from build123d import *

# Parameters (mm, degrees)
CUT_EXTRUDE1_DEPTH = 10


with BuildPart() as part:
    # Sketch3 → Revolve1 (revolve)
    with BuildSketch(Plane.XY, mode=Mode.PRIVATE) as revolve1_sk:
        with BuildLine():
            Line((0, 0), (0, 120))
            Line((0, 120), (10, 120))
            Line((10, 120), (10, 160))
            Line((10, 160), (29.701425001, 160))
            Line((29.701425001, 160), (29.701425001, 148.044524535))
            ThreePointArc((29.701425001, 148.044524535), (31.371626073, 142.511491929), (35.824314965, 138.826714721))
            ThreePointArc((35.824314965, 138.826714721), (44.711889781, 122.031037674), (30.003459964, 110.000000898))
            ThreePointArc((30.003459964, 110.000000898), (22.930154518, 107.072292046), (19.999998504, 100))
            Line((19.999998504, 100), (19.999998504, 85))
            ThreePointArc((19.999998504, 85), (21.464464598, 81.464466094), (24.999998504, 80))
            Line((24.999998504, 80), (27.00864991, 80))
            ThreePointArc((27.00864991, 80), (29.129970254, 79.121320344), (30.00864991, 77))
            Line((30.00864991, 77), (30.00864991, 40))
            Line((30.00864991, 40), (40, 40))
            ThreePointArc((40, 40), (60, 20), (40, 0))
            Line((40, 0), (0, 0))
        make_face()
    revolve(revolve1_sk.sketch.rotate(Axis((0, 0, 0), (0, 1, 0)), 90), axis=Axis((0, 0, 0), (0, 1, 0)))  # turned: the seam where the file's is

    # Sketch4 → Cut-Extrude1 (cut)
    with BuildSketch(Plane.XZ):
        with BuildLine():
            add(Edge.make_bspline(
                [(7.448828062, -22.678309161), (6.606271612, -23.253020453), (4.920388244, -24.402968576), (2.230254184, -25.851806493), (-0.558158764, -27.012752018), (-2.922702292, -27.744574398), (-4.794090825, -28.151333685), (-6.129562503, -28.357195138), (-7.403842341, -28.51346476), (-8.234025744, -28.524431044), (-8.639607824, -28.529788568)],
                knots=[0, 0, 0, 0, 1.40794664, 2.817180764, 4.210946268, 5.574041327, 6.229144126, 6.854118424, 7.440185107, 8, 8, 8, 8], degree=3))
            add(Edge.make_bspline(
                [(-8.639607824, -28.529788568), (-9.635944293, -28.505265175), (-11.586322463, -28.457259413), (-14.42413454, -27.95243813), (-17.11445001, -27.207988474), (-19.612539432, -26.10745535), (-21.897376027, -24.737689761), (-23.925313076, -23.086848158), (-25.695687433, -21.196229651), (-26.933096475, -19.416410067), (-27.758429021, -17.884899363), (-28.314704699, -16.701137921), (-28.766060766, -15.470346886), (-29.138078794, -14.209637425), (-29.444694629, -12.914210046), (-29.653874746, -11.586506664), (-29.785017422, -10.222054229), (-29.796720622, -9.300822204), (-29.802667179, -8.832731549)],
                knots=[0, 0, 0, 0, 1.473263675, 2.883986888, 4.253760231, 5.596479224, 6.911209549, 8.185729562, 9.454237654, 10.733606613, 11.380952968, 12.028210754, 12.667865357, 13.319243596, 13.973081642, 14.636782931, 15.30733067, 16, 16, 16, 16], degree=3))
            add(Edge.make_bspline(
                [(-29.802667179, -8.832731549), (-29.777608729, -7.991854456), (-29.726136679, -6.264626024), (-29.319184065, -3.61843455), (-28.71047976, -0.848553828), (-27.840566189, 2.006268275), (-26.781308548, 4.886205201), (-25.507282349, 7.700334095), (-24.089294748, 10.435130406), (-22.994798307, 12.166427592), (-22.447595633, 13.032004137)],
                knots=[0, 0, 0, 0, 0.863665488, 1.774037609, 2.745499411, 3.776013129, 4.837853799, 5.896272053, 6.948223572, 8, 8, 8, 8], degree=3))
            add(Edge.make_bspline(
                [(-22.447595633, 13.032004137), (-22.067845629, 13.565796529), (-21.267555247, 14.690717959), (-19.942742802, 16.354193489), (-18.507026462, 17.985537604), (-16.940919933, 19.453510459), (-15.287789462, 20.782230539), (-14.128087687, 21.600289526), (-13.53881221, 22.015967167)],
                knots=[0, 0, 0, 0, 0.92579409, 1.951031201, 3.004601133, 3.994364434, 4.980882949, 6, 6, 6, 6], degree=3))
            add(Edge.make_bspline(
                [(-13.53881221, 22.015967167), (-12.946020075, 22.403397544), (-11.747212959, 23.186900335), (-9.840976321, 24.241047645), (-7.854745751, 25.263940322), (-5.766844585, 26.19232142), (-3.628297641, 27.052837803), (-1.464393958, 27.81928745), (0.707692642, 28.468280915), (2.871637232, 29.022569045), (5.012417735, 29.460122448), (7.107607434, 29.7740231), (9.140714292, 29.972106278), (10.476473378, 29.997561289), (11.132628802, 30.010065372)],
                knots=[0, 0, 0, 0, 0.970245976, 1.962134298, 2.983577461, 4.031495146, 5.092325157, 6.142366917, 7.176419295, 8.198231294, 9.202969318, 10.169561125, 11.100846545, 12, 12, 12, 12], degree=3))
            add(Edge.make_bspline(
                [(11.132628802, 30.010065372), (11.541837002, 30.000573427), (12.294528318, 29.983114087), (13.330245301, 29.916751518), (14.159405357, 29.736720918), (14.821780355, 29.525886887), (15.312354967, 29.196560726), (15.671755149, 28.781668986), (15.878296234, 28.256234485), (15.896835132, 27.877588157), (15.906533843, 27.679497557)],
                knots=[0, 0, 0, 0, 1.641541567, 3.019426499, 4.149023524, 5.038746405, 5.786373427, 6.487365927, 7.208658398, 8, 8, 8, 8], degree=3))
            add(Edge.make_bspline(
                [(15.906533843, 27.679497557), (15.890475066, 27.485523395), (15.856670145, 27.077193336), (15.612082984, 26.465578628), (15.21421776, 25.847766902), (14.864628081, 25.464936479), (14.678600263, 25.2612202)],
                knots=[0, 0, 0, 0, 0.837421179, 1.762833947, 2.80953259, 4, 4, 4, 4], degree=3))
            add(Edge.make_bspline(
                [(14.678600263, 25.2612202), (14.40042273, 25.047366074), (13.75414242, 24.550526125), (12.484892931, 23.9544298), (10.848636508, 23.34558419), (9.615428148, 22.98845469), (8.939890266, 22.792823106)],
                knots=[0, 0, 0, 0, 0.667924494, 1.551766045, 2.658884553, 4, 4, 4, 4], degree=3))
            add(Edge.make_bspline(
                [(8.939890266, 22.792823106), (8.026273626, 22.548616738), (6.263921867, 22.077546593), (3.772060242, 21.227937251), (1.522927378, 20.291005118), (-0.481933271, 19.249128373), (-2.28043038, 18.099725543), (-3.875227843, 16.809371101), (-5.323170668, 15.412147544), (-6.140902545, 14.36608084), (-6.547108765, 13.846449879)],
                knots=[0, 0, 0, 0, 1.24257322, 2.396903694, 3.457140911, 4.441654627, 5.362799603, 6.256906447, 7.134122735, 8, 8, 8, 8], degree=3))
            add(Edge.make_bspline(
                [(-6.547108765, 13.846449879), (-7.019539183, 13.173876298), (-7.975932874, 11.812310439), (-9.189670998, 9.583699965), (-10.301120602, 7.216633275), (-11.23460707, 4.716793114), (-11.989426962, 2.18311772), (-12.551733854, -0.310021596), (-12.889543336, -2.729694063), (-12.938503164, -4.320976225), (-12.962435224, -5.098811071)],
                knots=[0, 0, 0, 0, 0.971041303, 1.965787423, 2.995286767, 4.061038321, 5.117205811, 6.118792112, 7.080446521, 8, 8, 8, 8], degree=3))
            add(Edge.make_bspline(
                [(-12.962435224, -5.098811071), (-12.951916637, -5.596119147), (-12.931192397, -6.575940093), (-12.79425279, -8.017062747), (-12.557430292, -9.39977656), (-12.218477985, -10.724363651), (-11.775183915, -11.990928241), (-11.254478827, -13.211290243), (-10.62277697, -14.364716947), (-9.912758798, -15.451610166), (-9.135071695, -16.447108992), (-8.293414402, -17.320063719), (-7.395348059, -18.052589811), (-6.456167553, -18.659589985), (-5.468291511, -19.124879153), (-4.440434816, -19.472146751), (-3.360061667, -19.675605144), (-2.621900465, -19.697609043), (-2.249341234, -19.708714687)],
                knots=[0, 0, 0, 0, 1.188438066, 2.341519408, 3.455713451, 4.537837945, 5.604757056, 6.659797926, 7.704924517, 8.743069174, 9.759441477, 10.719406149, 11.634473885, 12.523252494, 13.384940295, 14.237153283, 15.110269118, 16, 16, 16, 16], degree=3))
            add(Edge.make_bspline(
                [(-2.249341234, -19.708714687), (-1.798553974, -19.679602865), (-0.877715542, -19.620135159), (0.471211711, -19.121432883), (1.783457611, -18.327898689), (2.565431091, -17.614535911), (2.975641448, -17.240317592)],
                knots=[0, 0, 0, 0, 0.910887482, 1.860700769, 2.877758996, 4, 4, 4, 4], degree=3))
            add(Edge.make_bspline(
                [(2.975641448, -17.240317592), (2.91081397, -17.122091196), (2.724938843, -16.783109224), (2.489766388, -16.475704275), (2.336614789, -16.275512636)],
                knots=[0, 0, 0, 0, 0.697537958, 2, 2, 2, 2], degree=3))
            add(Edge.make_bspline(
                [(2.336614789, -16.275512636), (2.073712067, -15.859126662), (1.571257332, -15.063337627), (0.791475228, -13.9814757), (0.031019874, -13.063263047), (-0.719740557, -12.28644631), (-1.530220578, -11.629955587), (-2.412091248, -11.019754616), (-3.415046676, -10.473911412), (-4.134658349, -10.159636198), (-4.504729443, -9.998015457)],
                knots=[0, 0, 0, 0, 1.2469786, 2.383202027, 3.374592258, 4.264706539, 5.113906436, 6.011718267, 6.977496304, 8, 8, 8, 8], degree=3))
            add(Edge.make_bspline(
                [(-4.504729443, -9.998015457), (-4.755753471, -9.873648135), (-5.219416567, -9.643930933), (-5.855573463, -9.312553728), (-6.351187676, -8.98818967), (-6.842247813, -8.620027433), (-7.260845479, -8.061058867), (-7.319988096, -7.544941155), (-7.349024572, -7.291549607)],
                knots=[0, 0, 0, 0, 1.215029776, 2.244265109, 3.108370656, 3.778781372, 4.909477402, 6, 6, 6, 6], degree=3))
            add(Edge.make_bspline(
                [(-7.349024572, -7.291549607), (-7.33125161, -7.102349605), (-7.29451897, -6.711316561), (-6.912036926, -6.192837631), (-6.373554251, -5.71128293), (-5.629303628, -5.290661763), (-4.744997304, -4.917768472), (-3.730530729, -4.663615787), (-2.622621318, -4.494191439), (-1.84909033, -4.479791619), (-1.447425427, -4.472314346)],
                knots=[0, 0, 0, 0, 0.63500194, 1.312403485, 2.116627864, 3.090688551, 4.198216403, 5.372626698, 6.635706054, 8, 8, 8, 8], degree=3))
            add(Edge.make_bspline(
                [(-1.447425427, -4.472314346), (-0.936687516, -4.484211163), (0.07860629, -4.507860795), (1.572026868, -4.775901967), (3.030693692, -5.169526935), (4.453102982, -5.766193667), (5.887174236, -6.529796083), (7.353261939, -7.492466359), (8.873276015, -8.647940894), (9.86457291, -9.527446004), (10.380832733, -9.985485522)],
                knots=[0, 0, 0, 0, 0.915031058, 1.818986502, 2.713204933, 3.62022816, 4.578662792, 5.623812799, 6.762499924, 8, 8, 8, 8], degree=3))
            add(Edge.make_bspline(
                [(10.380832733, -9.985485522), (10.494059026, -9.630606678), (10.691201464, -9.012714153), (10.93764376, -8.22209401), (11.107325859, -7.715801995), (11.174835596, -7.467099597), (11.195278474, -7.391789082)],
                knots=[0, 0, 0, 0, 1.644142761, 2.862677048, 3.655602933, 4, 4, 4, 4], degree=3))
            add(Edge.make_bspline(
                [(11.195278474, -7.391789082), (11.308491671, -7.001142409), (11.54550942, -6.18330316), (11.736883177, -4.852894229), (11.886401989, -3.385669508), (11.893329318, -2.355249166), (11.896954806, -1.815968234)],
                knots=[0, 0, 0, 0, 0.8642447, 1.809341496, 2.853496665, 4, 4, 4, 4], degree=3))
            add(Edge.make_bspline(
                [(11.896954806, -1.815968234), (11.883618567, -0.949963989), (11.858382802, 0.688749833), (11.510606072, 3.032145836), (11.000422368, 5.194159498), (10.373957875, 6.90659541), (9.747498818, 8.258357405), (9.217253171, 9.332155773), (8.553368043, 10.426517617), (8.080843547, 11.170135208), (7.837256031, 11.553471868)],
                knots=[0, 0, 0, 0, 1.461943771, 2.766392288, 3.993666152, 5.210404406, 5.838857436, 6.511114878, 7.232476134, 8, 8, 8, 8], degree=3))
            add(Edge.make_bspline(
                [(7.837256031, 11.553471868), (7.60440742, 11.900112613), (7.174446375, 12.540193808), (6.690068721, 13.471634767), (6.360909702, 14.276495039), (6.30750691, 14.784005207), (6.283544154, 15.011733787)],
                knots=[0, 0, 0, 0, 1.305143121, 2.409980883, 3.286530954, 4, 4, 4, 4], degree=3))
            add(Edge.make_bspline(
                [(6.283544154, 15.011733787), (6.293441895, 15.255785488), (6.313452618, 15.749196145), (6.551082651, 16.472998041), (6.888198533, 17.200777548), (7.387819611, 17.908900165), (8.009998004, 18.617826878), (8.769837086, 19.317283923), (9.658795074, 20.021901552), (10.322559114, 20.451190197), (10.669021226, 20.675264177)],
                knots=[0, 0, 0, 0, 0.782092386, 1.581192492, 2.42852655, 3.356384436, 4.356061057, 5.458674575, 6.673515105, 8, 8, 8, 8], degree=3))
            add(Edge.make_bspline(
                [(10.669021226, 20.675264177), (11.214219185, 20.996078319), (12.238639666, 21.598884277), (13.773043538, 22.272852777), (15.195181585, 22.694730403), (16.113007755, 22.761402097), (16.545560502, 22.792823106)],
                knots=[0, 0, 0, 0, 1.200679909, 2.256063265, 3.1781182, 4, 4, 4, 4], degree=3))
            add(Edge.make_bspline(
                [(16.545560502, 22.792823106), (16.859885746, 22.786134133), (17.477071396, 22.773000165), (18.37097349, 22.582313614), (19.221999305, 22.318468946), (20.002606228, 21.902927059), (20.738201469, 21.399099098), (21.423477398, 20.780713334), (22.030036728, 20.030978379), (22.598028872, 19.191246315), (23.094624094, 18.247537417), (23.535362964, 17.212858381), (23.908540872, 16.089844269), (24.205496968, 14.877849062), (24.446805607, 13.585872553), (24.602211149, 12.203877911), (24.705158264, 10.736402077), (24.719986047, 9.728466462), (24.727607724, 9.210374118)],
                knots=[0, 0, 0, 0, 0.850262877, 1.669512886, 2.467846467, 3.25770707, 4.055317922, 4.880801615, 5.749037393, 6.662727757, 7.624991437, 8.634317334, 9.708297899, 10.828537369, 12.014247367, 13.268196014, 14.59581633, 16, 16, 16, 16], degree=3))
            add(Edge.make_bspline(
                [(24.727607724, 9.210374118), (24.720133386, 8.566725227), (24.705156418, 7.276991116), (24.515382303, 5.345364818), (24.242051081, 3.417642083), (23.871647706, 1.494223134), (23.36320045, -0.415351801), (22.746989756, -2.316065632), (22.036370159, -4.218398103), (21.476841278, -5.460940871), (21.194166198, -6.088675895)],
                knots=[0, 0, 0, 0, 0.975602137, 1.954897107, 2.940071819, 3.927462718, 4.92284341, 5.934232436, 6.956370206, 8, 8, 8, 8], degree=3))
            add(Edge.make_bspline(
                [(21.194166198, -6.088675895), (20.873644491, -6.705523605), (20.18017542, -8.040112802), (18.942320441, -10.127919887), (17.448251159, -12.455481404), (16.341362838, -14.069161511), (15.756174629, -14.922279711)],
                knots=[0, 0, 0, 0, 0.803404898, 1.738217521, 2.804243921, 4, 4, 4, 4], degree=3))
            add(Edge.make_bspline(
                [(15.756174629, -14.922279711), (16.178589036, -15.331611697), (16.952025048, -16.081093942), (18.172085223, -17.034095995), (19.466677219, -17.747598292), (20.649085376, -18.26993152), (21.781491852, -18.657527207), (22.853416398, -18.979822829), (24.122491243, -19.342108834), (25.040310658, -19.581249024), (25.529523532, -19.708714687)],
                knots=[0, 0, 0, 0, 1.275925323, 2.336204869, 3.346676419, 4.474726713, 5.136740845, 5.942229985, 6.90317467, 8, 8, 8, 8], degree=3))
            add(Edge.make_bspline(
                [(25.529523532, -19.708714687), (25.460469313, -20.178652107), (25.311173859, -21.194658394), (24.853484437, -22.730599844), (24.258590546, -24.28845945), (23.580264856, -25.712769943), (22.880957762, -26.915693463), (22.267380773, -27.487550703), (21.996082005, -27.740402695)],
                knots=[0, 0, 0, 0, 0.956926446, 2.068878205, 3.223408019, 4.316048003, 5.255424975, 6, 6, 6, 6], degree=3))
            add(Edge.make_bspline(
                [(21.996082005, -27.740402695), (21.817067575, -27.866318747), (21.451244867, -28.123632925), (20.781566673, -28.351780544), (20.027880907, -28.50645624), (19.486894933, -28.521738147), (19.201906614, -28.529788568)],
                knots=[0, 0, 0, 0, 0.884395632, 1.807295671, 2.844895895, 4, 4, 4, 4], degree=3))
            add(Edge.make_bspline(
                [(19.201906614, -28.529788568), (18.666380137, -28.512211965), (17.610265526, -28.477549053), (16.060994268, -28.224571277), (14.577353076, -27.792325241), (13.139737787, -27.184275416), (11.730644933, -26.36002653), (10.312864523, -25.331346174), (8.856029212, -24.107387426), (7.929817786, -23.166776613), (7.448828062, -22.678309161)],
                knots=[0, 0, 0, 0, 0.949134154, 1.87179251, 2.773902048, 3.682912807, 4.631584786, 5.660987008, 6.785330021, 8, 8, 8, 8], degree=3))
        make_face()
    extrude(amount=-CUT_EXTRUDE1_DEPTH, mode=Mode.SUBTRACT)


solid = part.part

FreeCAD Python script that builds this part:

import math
import FreeCAD as App
import Part
import Sketcher
Q = App.Units.Quantity

doc = App.newDocument("Part")
params = doc.addObject("Spreadsheet::Sheet", "Params")
for row, (alias, value) in enumerate([
    ("sketch1_radius", "20 mm"),
    ("sketch1_radius2", "3 mm"),
    ("sketch1_radius3", "5 mm"),
    ("sketch1_radius4", "10.000001 mm"),
    ("sketch1_radius5", "15 mm"),
    ("revolution_angle", "360 deg"),
    ("pocket1_length", "10 mm"),
], start=1):
    params.set(f"A{row}", alias)
    params.set(f"B{row}", "=" + value)
    params.setAlias(f"B{row}", alias)

body = doc.addObject("PartDesign::Body", "Body")

sketch1 = body.newObject("Sketcher::SketchObject", "Sketch")
sketch1.AttachmentSupport = (doc.getObject("XY_Plane"), [""])
sketch1.MapMode = "FlatFace"
sketch1.addGeometry([
    Part.LineSegment(App.Vector(0, 120, 0), App.Vector(0, 0, 0)),
    Part.LineSegment(App.Vector(0, 0, 0), App.Vector(40, 0, 0)),
    Part.ArcOfCircle(Part.Circle(App.Vector(40, 20, 0), App.Vector(0, 0, 1), 20), math.radians(-90), math.radians(90)),
    Part.LineSegment(App.Vector(40, 40, 0), App.Vector(30, 40, 0)),
    Part.LineSegment(App.Vector(30, 40, 0), App.Vector(30, 77, 0)),
    Part.ArcOfCircle(Part.Circle(App.Vector(27, 77, 0), App.Vector(0, 0, 1), 3), math.radians(0), math.radians(90)),
    Part.LineSegment(App.Vector(27, 80, 0), App.Vector(25, 80, 0)),
    Part.ArcOfCircle(Part.Circle(App.Vector(25, 85, 0), App.Vector(0, 0, 1), 5), math.radians(180), math.radians(270)),
    Part.LineSegment(App.Vector(20, 85, 0), App.Vector(20, 100, 0)),
    Part.ArcOfCircle(Part.Circle(App.Vector(30, 100, 0), App.Vector(0, 0, 1), 10), math.radians(90), math.radians(180)),
    Part.ArcOfCircle(Part.Circle(App.Vector(30, 125, 0), App.Vector(0, 0, 1), 15), math.radians(-90), math.radians(67)),
    Part.ArcOfCircle(Part.Circle(App.Vector(39.7, 148, 0), App.Vector(0, 0, 1), 10), math.radians(180), math.radians(247)),
    Part.LineSegment(App.Vector(29.7, 148, 0), App.Vector(29.7, 160, 0)),
    Part.LineSegment(App.Vector(29.7, 160, 0), App.Vector(10, 160, 0)),
    Part.LineSegment(App.Vector(10, 160, 0), App.Vector(10, 120, 0)),
    Part.LineSegment(App.Vector(10, 120, 0), App.Vector(0, 120, 0)),
], False)
sketch1.addConstraint([
    Sketcher.Constraint("Coincident", 0, 2, 1, 1),
    Sketcher.Constraint("Tangent", 1, 2, 2, 1),
    Sketcher.Constraint("Tangent", 2, 2, 3, 1),
    Sketcher.Constraint("Coincident", 3, 2, 4, 1),
    Sketcher.Constraint("Tangent", 4, 2, 5, 1),
    Sketcher.Constraint("Tangent", 5, 2, 6, 1),
    Sketcher.Constraint("Tangent", 6, 2, 7, 2),
    Sketcher.Constraint("Tangent", 7, 1, 8, 1),
    Sketcher.Constraint("Tangent", 8, 2, 9, 2),
    Sketcher.Constraint("Tangent", 9, 1, 10, 1),
    Sketcher.Constraint("Tangent", 10, 2, 11, 2),
    Sketcher.Constraint("Tangent", 11, 1, 12, 1),
    Sketcher.Constraint("Coincident", 12, 2, 13, 1),
    Sketcher.Constraint("Coincident", 13, 2, 14, 1),
    Sketcher.Constraint("Coincident", 14, 2, 15, 1),
    Sketcher.Constraint("Coincident", 15, 2, 0, 1),
    Sketcher.Constraint("Vertical", 0),
    Sketcher.Constraint("Horizontal", 1),
    Sketcher.Constraint("Horizontal", 3),
    Sketcher.Constraint("Vertical", 4),
    Sketcher.Constraint("Horizontal", 6),
    Sketcher.Constraint("Vertical", 8),
    Sketcher.Constraint("Vertical", 12),
    Sketcher.Constraint("Horizontal", 13),
    Sketcher.Constraint("Vertical", 14),
    Sketcher.Constraint("Horizontal", 15),
    Sketcher.Constraint("Coincident", 0, 2, -1, 1),
    Sketcher.Constraint("Equal", 9, 11),
    Sketcher.Constraint("Vertical", 10, 3, 3, 2),
    Sketcher.Constraint("Equal", 1, 14),
    Sketcher.Constraint("Radius", 2, Q("20 mm")),
    Sketcher.Constraint("Radius", 5, Q("3 mm")),
    Sketcher.Constraint("Radius", 7, Q("5 mm")),
    Sketcher.Constraint("Radius", 9, Q("10.000001 mm")),
    Sketcher.Constraint("Radius", 10, Q("15 mm")),
    Sketcher.Constraint("DistanceX", 1, 1, 1, 2, Q("40 mm")),
    Sketcher.Constraint("DistanceX", 15, 2, 15, 1, Q("10 mm")),
    Sketcher.Constraint("DistanceY", 0, 2, 0, 1, Q("120 mm")),
    Sketcher.Constraint("DistanceY", 4, 1, 4, 2, Q("37 mm")),
    Sketcher.Constraint("DistanceY", 8, 1, 8, 2, Q("15 mm")),
    Sketcher.Constraint("DistanceX", -1, 1, 7, 3, Q("24.999999 mm")),
    Sketcher.Constraint("DistanceX", 3, 2, 3, 1, Q("9.99135 mm")),
    Sketcher.Constraint("DistanceX", 13, 2, 13, 1, Q("19.701425 mm")),
])
sketch1.setExpression("Constraints[30]", "Params.sketch1_radius")
sketch1.setExpression("Constraints[31]", "Params.sketch1_radius2")
sketch1.setExpression("Constraints[32]", "Params.sketch1_radius3")
sketch1.setExpression("Constraints[33]", "Params.sketch1_radius4")
sketch1.setExpression("Constraints[34]", "Params.sketch1_radius5")
revolution = body.newObject("PartDesign::Revolution", "Revolution")
revolution.Profile = sketch1
revolution.ReferenceAxis = (sketch1, ["V_Axis"])
revolution.setExpression("Angle", "Params.revolution_angle")

sketch2 = body.newObject("Sketcher::SketchObject", "Sketch001")
sketch2.AttachmentSupport = (doc.getObject("XZ_Plane"), [""])
sketch2.MapMode = "FlatFace"
sketch2.addGeometry([
    Part.BSplineCurve([App.Vector(7.448828, -22.678309, 0), App.Vector(6.606272, -23.25302, 0), App.Vector(4.920388, -24.402969, 0), App.Vector(2.230254, -25.851806, 0), App.Vector(-0.558159, -27.012752, 0), App.Vector(-2.922702, -27.744574, 0), App.Vector(-4.794091, -28.151334, 0), App.Vector(-6.129563, -28.357195, 0), App.Vector(-7.403842, -28.513465, 0), App.Vector(-8.234026, -28.524431, 0), App.Vector(-8.639608, -28.529789, 0)], [4, 1, 1, 1, 1, 1, 1, 1, 4], [0, 1.40794664, 2.817180764, 4.210946268, 5.574041327, 6.229144126, 6.854118424, 7.440185107, 8], False, 3, [1, 1, 1, 1, 1, 1, 1, 1, 1, 1, 1], False),
    Part.BSplineCurve([App.Vector(19.201907, -28.529789, 0), App.Vector(18.66638, -28.512212, 0), App.Vector(17.610266, -28.477549, 0), App.Vector(16.060994, -28.224571, 0), App.Vector(14.577353, -27.792325, 0), App.Vector(13.139738, -27.184275, 0), App.Vector(11.730645, -26.360027, 0), App.Vector(10.312865, -25.331346, 0), App.Vector(8.856029, -24.107387, 0), App.Vector(7.929818, -23.166777, 0), App.Vector(7.448828, -22.678309, 0)], [4, 1, 1, 1, 1, 1, 1, 1, 4], [0, 0.949134154, 1.87179251, 2.773902048, 3.682912807, 4.631584786, 5.660987008, 6.785330021, 8], False, 3, [1, 1, 1, 1, 1, 1, 1, 1, 1, 1, 1], False),
    Part.BSplineCurve([App.Vector(21.996082, -27.740403, 0), App.Vector(21.817068, -27.866319, 0), App.Vector(21.451245, -28.123633, 0), App.Vector(20.781567, -28.351781, 0), App.Vector(20.027881, -28.506456, 0), App.Vector(19.486895, -28.521738, 0), App.Vector(19.201907, -28.529789, 0)], [4, 1, 1, 1, 4], [0, 0.884395632, 1.807295671, 2.844895895, 4], False, 3, [1, 1, 1, 1, 1, 1, 1], False),
    Part.BSplineCurve([App.Vector(25.529524, -19.708715, 0), App.Vector(25.460469, -20.178652, 0), App.Vector(25.311174, -21.194658, 0), App.Vector(24.853484, -22.7306, 0), App.Vector(24.258591, -24.288459, 0), App.Vector(23.580265, -25.71277, 0), App.Vector(22.880958, -26.915693, 0), App.Vector(22.267381, -27.487551, 0), App.Vector(21.996082, -27.740403, 0)], [4, 1, 1, 1, 1, 1, 4], [0, 0.956926446, 2.068878205, 3.223408019, 4.316048003, 5.255424975, 6], False, 3, [1, 1, 1, 1, 1, 1, 1, 1, 1], False),
    Part.BSplineCurve([App.Vector(15.756175, -14.92228, 0), App.Vector(16.178589, -15.331612, 0), App.Vector(16.952025, -16.081094, 0), App.Vector(18.172085, -17.034096, 0), App.Vector(19.466677, -17.747598, 0), App.Vector(20.649085, -18.269932, 0), App.Vector(21.781492, -18.657527, 0), App.Vector(22.853416, -18.979823, 0), App.Vector(24.122491, -19.342109, 0), App.Vector(25.040311, -19.581249, 0), App.Vector(25.529524, -19.708715, 0)], [4, 1, 1, 1, 1, 1, 1, 1, 4], [0, 1.275925323, 2.336204869, 3.346676419, 4.474726713, 5.136740845, 5.942229985, 6.90317467, 8], False, 3, [1, 1, 1, 1, 1, 1, 1, 1, 1, 1, 1], False),
    Part.BSplineCurve([App.Vector(21.194166, -6.088676, 0), App.Vector(20.873644, -6.705524, 0), App.Vector(20.180175, -8.040113, 0), App.Vector(18.94232, -10.12792, 0), App.Vector(17.448251, -12.455481, 0), App.Vector(16.341363, -14.069162, 0), App.Vector(15.756175, -14.92228, 0)], [4, 1, 1, 1, 4], [0, 0.803404898, 1.738217521, 2.804243921, 4], False, 3, [1, 1, 1, 1, 1, 1, 1], False),
    Part.BSplineCurve([App.Vector(24.727608, 9.210374, 0), App.Vector(24.720133, 8.566725, 0), App.Vector(24.705156, 7.276991, 0), App.Vector(24.515382, 5.345365, 0), App.Vector(24.242051, 3.417642, 0), App.Vector(23.871648, 1.494223, 0), App.Vector(23.3632, -0.415352, 0), App.Vector(22.74699, -2.316066, 0), App.Vector(22.03637, -4.218398, 0), App.Vector(21.476841, -5.460941, 0), App.Vector(21.194166, -6.088676, 0)], [4, 1, 1, 1, 1, 1, 1, 1, 4], [0, 0.975602137, 1.954897107, 2.940071819, 3.927462718, 4.92284341, 5.934232436, 6.956370206, 8], False, 3, [1, 1, 1, 1, 1, 1, 1, 1, 1, 1, 1], False),
    Part.BSplineCurve([App.Vector(16.545561, 22.792823, 0), App.Vector(16.859886, 22.786134, 0), App.Vector(17.477071, 22.773, 0), App.Vector(18.370973, 22.582314, 0), App.Vector(19.221999, 22.318469, 0), App.Vector(20.002606, 21.902927, 0), App.Vector(20.738201, 21.399099, 0), App.Vector(21.423477, 20.780713, 0), App.Vector(22.030037, 20.030978, 0), App.Vector(22.598029, 19.191246, 0), App.Vector(23.094624, 18.247537, 0), App.Vector(23.535363, 17.212858, 0), App.Vector(23.908541, 16.089844, 0), App.Vector(24.205497, 14.877849, 0), App.Vector(24.446806, 13.585873, 0), App.Vector(24.602211, 12.203878, 0), App.Vector(24.705158, 10.736402, 0), App.Vector(24.719986, 9.728466, 0), App.Vector(24.727608, 9.210374, 0)], [4, 1, 1, 1, 1, 1, 1, 1, 1, 1, 1, 1, 1, 1, 1, 1, 4], [0, 0.850262877, 1.669512886, 2.467846467, 3.25770707, 4.055317922, 4.880801615, 5.749037393, 6.662727757, 7.624991437, 8.634317334, 9.708297899, 10.828537369, 12.014247367, 13.268196014, 14.59581633, 16], False, 3, [1, 1, 1, 1, 1, 1, 1, 1, 1, 1, 1, 1, 1, 1, 1, 1, 1, 1, 1], False),
    Part.BSplineCurve([App.Vector(10.669021, 20.675264, 0), App.Vector(11.214219, 20.996078, 0), App.Vector(12.23864, 21.598884, 0), App.Vector(13.773044, 22.272853, 0), App.Vector(15.195182, 22.69473, 0), App.Vector(16.113008, 22.761402, 0), App.Vector(16.545561, 22.792823, 0)], [4, 1, 1, 1, 4], [0, 1.200679909, 2.256063265, 3.1781182, 4], False, 3, [1, 1, 1, 1, 1, 1, 1], False),
    Part.BSplineCurve([App.Vector(6.283544, 15.011734, 0), App.Vector(6.293442, 15.255785, 0), App.Vector(6.313453, 15.749196, 0), App.Vector(6.551083, 16.472998, 0), App.Vector(6.888199, 17.200778, 0), App.Vector(7.38782, 17.9089, 0), App.Vector(8.009998, 18.617827, 0), App.Vector(8.769837, 19.317284, 0), App.Vector(9.658795, 20.021902, 0), App.Vector(10.322559, 20.45119, 0), App.Vector(10.669021, 20.675264, 0)], [4, 1, 1, 1, 1, 1, 1, 1, 4], [0, 0.782092386, 1.581192492, 2.42852655, 3.356384436, 4.356061057, 5.458674575, 6.673515105, 8], False, 3, [1, 1, 1, 1, 1, 1, 1, 1, 1, 1, 1], False),
    Part.BSplineCurve([App.Vector(7.837256, 11.553472, 0), App.Vector(7.604407, 11.900113, 0), App.Vector(7.174446, 12.540194, 0), App.Vector(6.690069, 13.471635, 0), App.Vector(6.36091, 14.276495, 0), App.Vector(6.307507, 14.784005, 0), App.Vector(6.283544, 15.011734, 0)], [4, 1, 1, 1, 4], [0, 1.305143121, 2.409980883, 3.286530954, 4], False, 3, [1, 1, 1, 1, 1, 1, 1], False),
    Part.BSplineCurve([App.Vector(11.896955, -1.815968, 0), App.Vector(11.883619, -0.949964, 0), App.Vector(11.858383, 0.68875, 0), App.Vector(11.510606, 3.032146, 0), App.Vector(11.000422, 5.194159, 0), App.Vector(10.373958, 6.906595, 0), App.Vector(9.747499, 8.258357, 0), App.Vector(9.217253, 9.332156, 0), App.Vector(8.553368, 10.426518, 0), App.Vector(8.080844, 11.170135, 0), App.Vector(7.837256, 11.553472, 0)], [4, 1, 1, 1, 1, 1, 1, 1, 4], [0, 1.461943771, 2.766392288, 3.993666152, 5.210404406, 5.838857436, 6.511114878, 7.232476134, 8], False, 3, [1, 1, 1, 1, 1, 1, 1, 1, 1, 1, 1], False),
    Part.BSplineCurve([App.Vector(11.195278, -7.391789, 0), App.Vector(11.308492, -7.001142, 0), App.Vector(11.545509, -6.183303, 0), App.Vector(11.736883, -4.852894, 0), App.Vector(11.886402, -3.38567, 0), App.Vector(11.893329, -2.355249, 0), App.Vector(11.896955, -1.815968, 0)], [4, 1, 1, 1, 4], [0, 0.8642447, 1.809341496, 2.853496665, 4], False, 3, [1, 1, 1, 1, 1, 1, 1], False),
    Part.BSplineCurve([App.Vector(10.380833, -9.985486, 0), App.Vector(10.494059, -9.630607, 0), App.Vector(10.691201, -9.012714, 0), App.Vector(10.937644, -8.222094, 0), App.Vector(11.107326, -7.715802, 0), App.Vector(11.174836, -7.4671, 0), App.Vector(11.195278, -7.391789, 0)], [4, 1, 1, 1, 4], [0, 1.644142761, 2.862677048, 3.655602933, 4], False, 3, [1, 1, 1, 1, 1, 1, 1], False),
    Part.BSplineCurve([App.Vector(-1.447425, -4.472314, 0), App.Vector(-0.936688, -4.484211, 0), App.Vector(0.078606, -4.507861, 0), App.Vector(1.572027, -4.775902, 0), App.Vector(3.030694, -5.169527, 0), App.Vector(4.453103, -5.766194, 0), App.Vector(5.887174, -6.529796, 0), App.Vector(7.353262, -7.492466, 0), App.Vector(8.873276, -8.647941, 0), App.Vector(9.864573, -9.527446, 0), App.Vector(10.380833, -9.985486, 0)], [4, 1, 1, 1, 1, 1, 1, 1, 4], [0, 0.915031058, 1.818986502, 2.713204933, 3.62022816, 4.578662792, 5.623812799, 6.762499924, 8], False, 3, [1, 1, 1, 1, 1, 1, 1, 1, 1, 1, 1], False),
    Part.BSplineCurve([App.Vector(-7.349025, -7.29155, 0), App.Vector(-7.331252, -7.10235, 0), App.Vector(-7.294519, -6.711317, 0), App.Vector(-6.912037, -6.192838, 0), App.Vector(-6.373554, -5.711283, 0), App.Vector(-5.629304, -5.290662, 0), App.Vector(-4.744997, -4.917768, 0), App.Vector(-3.730531, -4.663616, 0), App.Vector(-2.622621, -4.494191, 0), App.Vector(-1.84909, -4.479792, 0), App.Vector(-1.447425, -4.472314, 0)], [4, 1, 1, 1, 1, 1, 1, 1, 4], [0, 0.63500194, 1.312403485, 2.116627864, 3.090688551, 4.198216403, 5.372626698, 6.635706054, 8], False, 3, [1, 1, 1, 1, 1, 1, 1, 1, 1, 1, 1], False),
    Part.BSplineCurve([App.Vector(-4.504729, -9.998015, 0), App.Vector(-4.755753, -9.873648, 0), App.Vector(-5.219417, -9.643931, 0), App.Vector(-5.855573, -9.312554, 0), App.Vector(-6.351188, -8.98819, 0), App.Vector(-6.842248, -8.620027, 0), App.Vector(-7.260845, -8.061059, 0), App.Vector(-7.319988, -7.544941, 0), App.Vector(-7.349025, -7.29155, 0)], [4, 1, 1, 1, 1, 1, 4], [0, 1.215029776, 2.244265109, 3.108370656, 3.778781372, 4.909477402, 6], False, 3, [1, 1, 1, 1, 1, 1, 1, 1, 1], False),
    Part.BSplineCurve([App.Vector(2.336615, -16.275513, 0), App.Vector(2.073712, -15.859127, 0), App.Vector(1.571257, -15.063338, 0), App.Vector(0.791475, -13.981476, 0), App.Vector(0.03102, -13.063263, 0), App.Vector(-0.719741, -12.286446, 0), App.Vector(-1.530221, -11.629956, 0), App.Vector(-2.412091, -11.019755, 0), App.Vector(-3.415047, -10.473911, 0), App.Vector(-4.134658, -10.159636, 0), App.Vector(-4.504729, -9.998015, 0)], [4, 1, 1, 1, 1, 1, 1, 1, 4], [0, 1.2469786, 2.383202027, 3.374592258, 4.264706539, 5.113906436, 6.011718267, 6.977496304, 8], False, 3, [1, 1, 1, 1, 1, 1, 1, 1, 1, 1, 1], False),
    Part.BSplineCurve([App.Vector(2.975641, -17.240318, 0), App.Vector(2.910814, -17.122091, 0), App.Vector(2.724939, -16.783109, 0), App.Vector(2.489766, -16.475704, 0), App.Vector(2.336615, -16.275513, 0)], [4, 1, 4], [0, 0.697537958, 2], False, 3, [1, 1, 1, 1, 1], False),
    Part.BSplineCurve([App.Vector(-2.249341, -19.708715, 0), App.Vector(-1.798554, -19.679603, 0), App.Vector(-0.877716, -19.620135, 0), App.Vector(0.471212, -19.121433, 0), App.Vector(1.783458, -18.327899, 0), App.Vector(2.565431, -17.614536, 0), App.Vector(2.975641, -17.240318, 0)], [4, 1, 1, 1, 4], [0, 0.910887482, 1.860700769, 2.877758996, 4], False, 3, [1, 1, 1, 1, 1, 1, 1], False),
    Part.BSplineCurve([App.Vector(-12.962435, -5.098811, 0), App.Vector(-12.951917, -5.596119, 0), App.Vector(-12.931192, -6.57594, 0), App.Vector(-12.794253, -8.017063, 0), App.Vector(-12.55743, -9.399777, 0), App.Vector(-12.218478, -10.724364, 0), App.Vector(-11.775184, -11.990928, 0), App.Vector(-11.254479, -13.21129, 0), App.Vector(-10.622777, -14.364717, 0), App.Vector(-9.912759, -15.45161, 0), App.Vector(-9.135072, -16.447109, 0), App.Vector(-8.293414, -17.320064, 0), App.Vector(-7.395348, -18.05259, 0), App.Vector(-6.456168, -18.65959, 0), App.Vector(-5.468292, -19.124879, 0), App.Vector(-4.440435, -19.472147, 0), App.Vector(-3.360062, -19.675605, 0), App.Vector(-2.6219, -19.697609, 0), App.Vector(-2.249341, -19.708715, 0)], [4, 1, 1, 1, 1, 1, 1, 1, 1, 1, 1, 1, 1, 1, 1, 1, 4], [0, 1.188438066, 2.341519408, 3.455713451, 4.537837945, 5.604757056, 6.659797926, 7.704924517, 8.743069174, 9.759441477, 10.719406149, 11.634473885, 12.523252494, 13.384940295, 14.237153283, 15.110269118, 16], False, 3, [1, 1, 1, 1, 1, 1, 1, 1, 1, 1, 1, 1, 1, 1, 1, 1, 1, 1, 1], False),
    Part.BSplineCurve([App.Vector(-6.547109, 13.84645, 0), App.Vector(-7.019539, 13.173876, 0), App.Vector(-7.975933, 11.81231, 0), App.Vector(-9.189671, 9.5837, 0), App.Vector(-10.301121, 7.216633, 0), App.Vector(-11.234607, 4.716793, 0), App.Vector(-11.989427, 2.183118, 0), App.Vector(-12.551734, -0.310022, 0), App.Vector(-12.889543, -2.729694, 0), App.Vector(-12.938503, -4.320976, 0), App.Vector(-12.962435, -5.098811, 0)], [4, 1, 1, 1, 1, 1, 1, 1, 4], [0, 0.971041303, 1.965787423, 2.995286767, 4.061038321, 5.117205811, 6.118792112, 7.080446521, 8], False, 3, [1, 1, 1, 1, 1, 1, 1, 1, 1, 1, 1], False),
    Part.BSplineCurve([App.Vector(8.93989, 22.792823, 0), App.Vector(8.026274, 22.548617, 0), App.Vector(6.263922, 22.077547, 0), App.Vector(3.77206, 21.227937, 0), App.Vector(1.522927, 20.291005, 0), App.Vector(-0.481933, 19.249128, 0), App.Vector(-2.28043, 18.099726, 0), App.Vector(-3.875228, 16.809371, 0), App.Vector(-5.323171, 15.412148, 0), App.Vector(-6.140903, 14.366081, 0), App.Vector(-6.547109, 13.84645, 0)], [4, 1, 1, 1, 1, 1, 1, 1, 4], [0, 1.24257322, 2.396903694, 3.457140911, 4.441654627, 5.362799603, 6.256906447, 7.134122735, 8], False, 3, [1, 1, 1, 1, 1, 1, 1, 1, 1, 1, 1], False),
    Part.BSplineCurve([App.Vector(14.6786, 25.26122, 0), App.Vector(14.400423, 25.047366, 0), App.Vector(13.754142, 24.550526, 0), App.Vector(12.484893, 23.95443, 0), App.Vector(10.848637, 23.345584, 0), App.Vector(9.615428, 22.988455, 0), App.Vector(8.93989, 22.792823, 0)], [4, 1, 1, 1, 4], [0, 0.667924494, 1.551766045, 2.658884553, 4], False, 3, [1, 1, 1, 1, 1, 1, 1], False),
    Part.BSplineCurve([App.Vector(15.906534, 27.679498, 0), App.Vector(15.890475, 27.485523, 0), App.Vector(15.85667, 27.077193, 0), App.Vector(15.612083, 26.465579, 0), App.Vector(15.214218, 25.847767, 0), App.Vector(14.864628, 25.464936, 0), App.Vector(14.6786, 25.26122, 0)], [4, 1, 1, 1, 4], [0, 0.837421179, 1.762833947, 2.80953259, 4], False, 3, [1, 1, 1, 1, 1, 1, 1], False),
    Part.BSplineCurve([App.Vector(11.132629, 30.010065, 0), App.Vector(11.541837, 30.000573, 0), App.Vector(12.294528, 29.983114, 0), App.Vector(13.330245, 29.916752, 0), App.Vector(14.159405, 29.736721, 0), App.Vector(14.82178, 29.525887, 0), App.Vector(15.312355, 29.196561, 0), App.Vector(15.671755, 28.781669, 0), App.Vector(15.878296, 28.256234, 0), App.Vector(15.896835, 27.877588, 0), App.Vector(15.906534, 27.679498, 0)], [4, 1, 1, 1, 1, 1, 1, 1, 4], [0, 1.641541567, 3.019426499, 4.149023524, 5.038746405, 5.786373427, 6.487365927, 7.208658398, 8], False, 3, [1, 1, 1, 1, 1, 1, 1, 1, 1, 1, 1], False),
    Part.BSplineCurve([App.Vector(-13.538812, 22.015967, 0), App.Vector(-12.94602, 22.403398, 0), App.Vector(-11.747213, 23.1869, 0), App.Vector(-9.840976, 24.241048, 0), App.Vector(-7.854746, 25.26394, 0), App.Vector(-5.766845, 26.192321, 0), App.Vector(-3.628298, 27.052838, 0), App.Vector(-1.464394, 27.819287, 0), App.Vector(0.707693, 28.468281, 0), App.Vector(2.871637, 29.022569, 0), App.Vector(5.012418, 29.460122, 0), App.Vector(7.107607, 29.774023, 0), App.Vector(9.140714, 29.972106, 0), App.Vector(10.476473, 29.997561, 0), App.Vector(11.132629, 30.010065, 0)], [4, 1, 1, 1, 1, 1, 1, 1, 1, 1, 1, 1, 4], [0, 0.970245976, 1.962134298, 2.983577461, 4.031495146, 5.092325157, 6.142366917, 7.176419295, 8.198231294, 9.202969318, 10.169561125, 11.100846545, 12], False, 3, [1, 1, 1, 1, 1, 1, 1, 1, 1, 1, 1, 1, 1, 1, 1], False),
    Part.BSplineCurve([App.Vector(-22.447596, 13.032004, 0), App.Vector(-22.067846, 13.565797, 0), App.Vector(-21.267555, 14.690718, 0), App.Vector(-19.942743, 16.354193, 0), App.Vector(-18.507026, 17.985538, 0), App.Vector(-16.94092, 19.45351, 0), App.Vector(-15.287789, 20.782231, 0), App.Vector(-14.128088, 21.60029, 0), App.Vector(-13.538812, 22.015967, 0)], [4, 1, 1, 1, 1, 1, 4], [0, 0.92579409, 1.951031201, 3.004601133, 3.994364434, 4.980882949, 6], False, 3, [1, 1, 1, 1, 1, 1, 1, 1, 1], False),
    Part.BSplineCurve([App.Vector(-29.802667, -8.832732, 0), App.Vector(-29.777609, -7.991854, 0), App.Vector(-29.726137, -6.264626, 0), App.Vector(-29.319184, -3.618435, 0), App.Vector(-28.71048, -0.848554, 0), App.Vector(-27.840566, 2.006268, 0), App.Vector(-26.781309, 4.886205, 0), App.Vector(-25.507282, 7.700334, 0), App.Vector(-24.089295, 10.43513, 0), App.Vector(-22.994798, 12.166428, 0), App.Vector(-22.447596, 13.032004, 0)], [4, 1, 1, 1, 1, 1, 1, 1, 4], [0, 0.863665488, 1.774037609, 2.745499411, 3.776013129, 4.837853799, 5.896272053, 6.948223572, 8], False, 3, [1, 1, 1, 1, 1, 1, 1, 1, 1, 1, 1], False),
    Part.BSplineCurve([App.Vector(-8.639608, -28.529789, 0), App.Vector(-9.635944, -28.505265, 0), App.Vector(-11.586322, -28.457259, 0), App.Vector(-14.424135, -27.952438, 0), App.Vector(-17.11445, -27.207988, 0), App.Vector(-19.612539, -26.107455, 0), App.Vector(-21.897376, -24.73769, 0), App.Vector(-23.925313, -23.086848, 0), App.Vector(-25.695687, -21.19623, 0), App.Vector(-26.933096, -19.41641, 0), App.Vector(-27.758429, -17.884899, 0), App.Vector(-28.314705, -16.701138, 0), App.Vector(-28.766061, -15.470347, 0), App.Vector(-29.138079, -14.209637, 0), App.Vector(-29.444695, -12.91421, 0), App.Vector(-29.653875, -11.586507, 0), App.Vector(-29.785017, -10.222054, 0), App.Vector(-29.796721, -9.300822, 0), App.Vector(-29.802667, -8.832732, 0)], [4, 1, 1, 1, 1, 1, 1, 1, 1, 1, 1, 1, 1, 1, 1, 1, 4], [0, 1.473263675, 2.883986888, 4.253760231, 5.596479224, 6.911209549, 8.185729562, 9.454237654, 10.733606613, 11.380952968, 12.028210754, 12.667865357, 13.319243596, 13.973081642, 14.636782931, 15.30733067, 16], False, 3, [1, 1, 1, 1, 1, 1, 1, 1, 1, 1, 1, 1, 1, 1, 1, 1, 1, 1, 1], False),
], False)
sketch2.addConstraint([
    Sketcher.Constraint("Block", 0),
    Sketcher.Constraint("Block", 1),
    Sketcher.Constraint("Block", 2),
    Sketcher.Constraint("Block", 3),
    Sketcher.Constraint("Block", 4),
    Sketcher.Constraint("Block", 5),
    Sketcher.Constraint("Block", 6),
    Sketcher.Constraint("Block", 7),
    Sketcher.Constraint("Block", 8),
    Sketcher.Constraint("Block", 9),
    Sketcher.Constraint("Block", 10),
    Sketcher.Constraint("Block", 11),
    Sketcher.Constraint("Block", 12),
    Sketcher.Constraint("Block", 13),
    Sketcher.Constraint("Block", 14),
    Sketcher.Constraint("Block", 15),
    Sketcher.Constraint("Block", 16),
    Sketcher.Constraint("Block", 17),
    Sketcher.Constraint("Block", 18),
    Sketcher.Constraint("Block", 19),
    Sketcher.Constraint("Block", 20),
    Sketcher.Constraint("Block", 21),
    Sketcher.Constraint("Block", 22),
    Sketcher.Constraint("Block", 23),
    Sketcher.Constraint("Block", 24),
    Sketcher.Constraint("Block", 25),
    Sketcher.Constraint("Block", 26),
    Sketcher.Constraint("Block", 27),
    Sketcher.Constraint("Block", 28),
    Sketcher.Constraint("Block", 29),
])
pocket1 = body.newObject("PartDesign::Pocket", "Pocket")
pocket1.Profile = sketch2
pocket1.setExpression("Length", "Params.pocket1_length")

doc.recompute()
